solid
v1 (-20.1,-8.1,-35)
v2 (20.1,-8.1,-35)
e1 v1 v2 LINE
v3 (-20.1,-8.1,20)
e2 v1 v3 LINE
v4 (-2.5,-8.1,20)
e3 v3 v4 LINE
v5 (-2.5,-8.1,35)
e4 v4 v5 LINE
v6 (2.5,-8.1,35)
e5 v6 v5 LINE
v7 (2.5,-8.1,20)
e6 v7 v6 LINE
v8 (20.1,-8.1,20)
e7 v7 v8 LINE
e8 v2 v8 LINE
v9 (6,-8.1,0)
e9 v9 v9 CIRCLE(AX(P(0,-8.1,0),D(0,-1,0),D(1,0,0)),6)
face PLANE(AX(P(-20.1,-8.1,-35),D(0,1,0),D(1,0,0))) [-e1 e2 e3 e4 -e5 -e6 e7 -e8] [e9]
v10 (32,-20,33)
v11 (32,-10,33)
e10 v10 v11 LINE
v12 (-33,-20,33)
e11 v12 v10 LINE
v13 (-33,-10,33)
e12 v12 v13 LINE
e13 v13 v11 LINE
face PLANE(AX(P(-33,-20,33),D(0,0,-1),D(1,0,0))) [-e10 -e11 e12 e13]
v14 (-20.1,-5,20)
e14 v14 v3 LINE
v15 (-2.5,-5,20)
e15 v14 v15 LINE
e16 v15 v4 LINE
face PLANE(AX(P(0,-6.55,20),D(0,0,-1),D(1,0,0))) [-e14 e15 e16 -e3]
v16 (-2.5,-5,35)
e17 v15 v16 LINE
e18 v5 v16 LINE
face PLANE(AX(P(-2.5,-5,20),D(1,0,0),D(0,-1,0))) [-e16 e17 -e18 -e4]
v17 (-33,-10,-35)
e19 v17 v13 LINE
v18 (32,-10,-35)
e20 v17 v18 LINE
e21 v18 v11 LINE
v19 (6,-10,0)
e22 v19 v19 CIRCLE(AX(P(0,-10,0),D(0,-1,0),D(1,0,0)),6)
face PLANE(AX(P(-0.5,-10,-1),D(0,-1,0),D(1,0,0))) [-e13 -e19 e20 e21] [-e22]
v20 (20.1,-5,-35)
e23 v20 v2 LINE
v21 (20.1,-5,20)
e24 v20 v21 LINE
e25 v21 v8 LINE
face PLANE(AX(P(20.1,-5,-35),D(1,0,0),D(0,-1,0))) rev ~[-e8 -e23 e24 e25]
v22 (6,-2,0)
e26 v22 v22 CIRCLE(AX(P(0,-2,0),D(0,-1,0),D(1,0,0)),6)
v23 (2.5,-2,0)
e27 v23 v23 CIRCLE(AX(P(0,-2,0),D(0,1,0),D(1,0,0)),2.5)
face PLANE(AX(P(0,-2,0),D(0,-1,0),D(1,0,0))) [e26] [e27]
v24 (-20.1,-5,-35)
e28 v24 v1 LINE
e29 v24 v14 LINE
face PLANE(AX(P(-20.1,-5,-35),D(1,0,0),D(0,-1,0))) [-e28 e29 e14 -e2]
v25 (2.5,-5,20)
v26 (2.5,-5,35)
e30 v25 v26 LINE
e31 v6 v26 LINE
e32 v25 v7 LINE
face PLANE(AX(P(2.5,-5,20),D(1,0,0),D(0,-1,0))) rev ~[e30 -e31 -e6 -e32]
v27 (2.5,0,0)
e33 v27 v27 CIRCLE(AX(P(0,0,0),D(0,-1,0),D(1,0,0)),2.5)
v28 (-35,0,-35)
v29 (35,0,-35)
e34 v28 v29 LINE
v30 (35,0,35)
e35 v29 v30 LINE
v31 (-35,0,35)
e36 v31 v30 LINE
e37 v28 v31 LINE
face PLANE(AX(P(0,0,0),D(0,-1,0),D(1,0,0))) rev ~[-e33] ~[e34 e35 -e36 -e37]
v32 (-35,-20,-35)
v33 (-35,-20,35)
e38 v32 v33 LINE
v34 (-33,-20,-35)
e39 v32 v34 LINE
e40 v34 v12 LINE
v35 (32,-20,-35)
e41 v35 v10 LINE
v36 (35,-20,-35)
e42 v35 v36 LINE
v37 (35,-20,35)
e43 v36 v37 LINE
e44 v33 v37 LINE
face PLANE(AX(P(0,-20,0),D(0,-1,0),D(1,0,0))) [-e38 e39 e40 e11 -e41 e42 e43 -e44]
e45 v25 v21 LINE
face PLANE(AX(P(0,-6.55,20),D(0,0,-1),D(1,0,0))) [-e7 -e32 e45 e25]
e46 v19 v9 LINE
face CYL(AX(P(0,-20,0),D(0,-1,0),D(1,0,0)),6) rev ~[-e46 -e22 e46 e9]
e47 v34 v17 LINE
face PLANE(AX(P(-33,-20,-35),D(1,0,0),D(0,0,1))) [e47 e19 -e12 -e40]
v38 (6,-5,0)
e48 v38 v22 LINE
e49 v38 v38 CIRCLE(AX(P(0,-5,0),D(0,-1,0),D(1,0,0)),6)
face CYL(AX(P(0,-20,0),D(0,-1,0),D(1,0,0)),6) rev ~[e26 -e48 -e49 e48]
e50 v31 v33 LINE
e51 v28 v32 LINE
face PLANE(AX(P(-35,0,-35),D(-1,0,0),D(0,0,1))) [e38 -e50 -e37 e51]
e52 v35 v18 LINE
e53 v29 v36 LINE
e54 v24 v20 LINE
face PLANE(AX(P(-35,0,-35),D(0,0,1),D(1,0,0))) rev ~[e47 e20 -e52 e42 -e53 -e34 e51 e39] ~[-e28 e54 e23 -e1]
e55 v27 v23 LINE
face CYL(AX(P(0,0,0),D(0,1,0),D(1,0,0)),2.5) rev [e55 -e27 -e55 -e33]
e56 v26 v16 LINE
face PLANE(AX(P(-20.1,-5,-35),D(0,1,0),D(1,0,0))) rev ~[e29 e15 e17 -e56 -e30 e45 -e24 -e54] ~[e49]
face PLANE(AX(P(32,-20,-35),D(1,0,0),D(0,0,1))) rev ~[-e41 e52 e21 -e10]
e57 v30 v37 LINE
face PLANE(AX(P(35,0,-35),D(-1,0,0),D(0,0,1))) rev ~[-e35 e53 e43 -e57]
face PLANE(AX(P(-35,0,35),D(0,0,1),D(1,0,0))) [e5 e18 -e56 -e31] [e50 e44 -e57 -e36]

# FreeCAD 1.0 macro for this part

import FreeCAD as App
import Part
import Sketcher

V = App.Vector
Q = App.Units.Quantity

doc = App.newDocument("Part")
body = doc.addObject("PartDesign::Body", "Body")

sketch1 = body.newObject("Sketcher::SketchObject", "Sketch")
sketch1.AttachmentSupport = (doc.getObject("XZ_Plane"), [""])
sketch1.MapMode = "FlatFace"
sketch1.addGeometry([
    Part.LineSegment(V(-35, 35, 0), V(-35, -35, 0)),
    Part.LineSegment(V(-35, -35, 0), V(35, -35, 0)),
    Part.LineSegment(V(35, -35, 0), V(35, 35, 0)),
    Part.LineSegment(V(35, 35, 0), V(-35, 35, 0)),
    Part.Circle(V(0, 0, 0), V(0, 0, 1), 2.5),
], False)
sketch1.addConstraint([
    Sketcher.Constraint("Coincident", 0, 2, 1, 1),
    Sketcher.Constraint("Coincident", 1, 2, 2, 1),
    Sketcher.Constraint("Coincident", 2, 2, 3, 1),
    Sketcher.Constraint("Coincident", 3, 2, 0, 1),
    Sketcher.Constraint("Vertical", 0),
    Sketcher.Constraint("Horizontal", 1),
    Sketcher.Constraint("Vertical", 2),
    Sketcher.Constraint("Horizontal", 3),
    Sketcher.Constraint("Coincident", 4, 3, -1, 1),
    Sketcher.Constraint("Symmetric", 0, 2, 2, 2, -1, 1),
    Sketcher.Constraint("Equal", 3, 0),
    Sketcher.Constraint("Diameter", 4, Q("5 mm")),
    Sketcher.Constraint("DistanceX", 1, 1, 1, 2, Q("70 mm")),
])
pad1 = body.newObject("PartDesign::Pad", "Pad")
pad1.Profile = sketch1
pad1.Length = 20

sketch2 = body.newObject("Sketcher::SketchObject", "Sketch001")
sketch2.AttachmentSupport = (doc.getObject("XY_Plane"), [""])
sketch2.MapMode = "FlatFace"
sketch2.AttachmentOffset = App.Placement(V(0, 0, -35), App.Rotation())
sketch2.addGeometry([
    Part.LineSegment(V(-20.1, -8.1, 0), V(-20.1, -5, 0)),
    Part.LineSegment(V(-20.1, -5, 0), V(20.1, -5, 0)),
    Part.LineSegment(V(20.1, -5, 0), V(20.1, -8.1, 0)),
    Part.LineSegment(V(20.1, -8.1, 0), V(-20.1, -8.1, 0)),
], False)
sketch2.addConstraint([
    Sketcher.Constraint("Coincident", 0, 2, 1, 1),
    Sketcher.Constraint("Coincident", 1, 2, 2, 1),
    Sketcher.Constraint("Coincident", 2, 2, 3, 1),
    Sketcher.Constraint("Coincident", 3, 2, 0, 1),
    Sketcher.Constraint("Vertical", 0),
    Sketcher.Constraint("Horizontal", 1),
    Sketcher.Constraint("Vertical", 2),
    Sketcher.Constraint("Horizontal", 3),
    Sketcher.Constraint("DistanceX", 1, 1, 1, 2, Q("40.2 mm")),
    Sketcher.Constraint("DistanceY", 0, 1, 0, 2, Q("3.1 mm")),
    Sketcher.Constraint("DistanceY", 0, 2, -1, 1, Q("5 mm")),
    Sketcher.Constraint("DistanceX", 0, 2, -1, 1, Q("20.1 mm")),
])
pocket1 = body.newObject("PartDesign::Pocket", "Pocket")
pocket1.Profile = sketch2
pocket1.Length = 55
pocket1.Reversed = True

sketch3 = body.newObject("Sketcher::SketchObject", "Sketch002")
sketch3.AttachmentSupport = (doc.getObject("XZ_Plane"), [""])
sketch3.MapMode = "FlatFace"
sketch3.AttachmentOffset = App.Placement(V(0, 0, 20), App.Rotation())
sketch3.addGeometry(Part.Circle(V(0, 0, 0), V(0, 0, 1), 6), False)
sketch3.addConstraint([
    Sketcher.Constraint("Coincident", 0, 3, -1, 1),
    Sketcher.Constraint("Diameter", 0, Q("12 mm")),
])
pocket2 = body.newObject("PartDesign::Pocket", "Pocket001")
pocket2.Profile = sketch3
pocket2.Length = 18

sketch4 = body.newObject("Sketcher::SketchObject", "Sketch003")
sketch4.AttachmentSupport = (doc.getObject("XZ_Plane"), [""])
sketch4.MapMode = "FlatFace"
sketch4.AttachmentOffset = App.Placement(V(0, 0, 20), App.Rotation())
sketch4.addGeometry([
    Part.LineSegment(V(-33, 33, 0), V(-33, -35, 0)),
    Part.LineSegment(V(-33, -35, 0), V(32, -35, 0)),
    Part.LineSegment(V(32, -35, 0), V(32, 33, 0)),
    Part.LineSegment(V(32, 33, 0), V(-33, 33, 0)),
], False)
sketch4.addConstraint([
    Sketcher.Constraint("Coincident", 0, 2, 1, 1),
    Sketcher.Constraint("Coincident", 1, 2, 2, 1),
    Sketcher.Constraint("Coincident", 2, 2, 3, 1),
    Sketcher.Constraint("Coincident", 3, 2, 0, 1),
    Sketcher.Constraint("Vertical", 0),
    Sketcher.Constraint("Horizontal", 1),
    Sketcher.Constraint("Vertical", 2),
    Sketcher.Constraint("Horizontal", 3),
    Sketcher.Constraint("DistanceX", 1, 1, 1, 2, Q("65 mm")),
    Sketcher.Constraint("DistanceY", 0, 2, 0, 1, Q("68 mm")),
    Sketcher.Constraint("DistanceX", 0, 2, -1, 1, Q("33 mm")),
    Sketcher.Constraint("DistanceY", 0, 2, -1, 1, Q("35 mm")),
])
pocket3 = body.newObject("PartDesign::Pocket", "Pocket002")
pocket3.Profile = sketch4
pocket3.Length = 10

sketch5 = body.newObject("Sketcher::SketchObject", "Sketch004")
sketch5.AttachmentSupport = (doc.getObject("XY_Plane"), [""])
sketch5.MapMode = "FlatFace"
sketch5.AttachmentOffset = App.Placement(V(0, 0, 20), App.Rotation())
sketch5.addGeometry([
    Part.LineSegment(V(-2.5, -8.1, 0), V(-2.5, -5, 0)),
    Part.LineSegment(V(-2.5, -5, 0), V(2.5, -5, 0)),
    Part.LineSegment(V(2.5, -5, 0), V(2.5, -8.1, 0)),
    Part.LineSegment(V(2.5, -8.1, 0), V(-2.5, -8.1, 0)),
], False)
sketch5.addConstraint([
    Sketcher.Constraint("Coincident", 0, 2, 1, 1),
    Sketcher.Constraint("Coincident", 1, 2, 2, 1),
    Sketcher.Constraint("Coincident", 2, 2, 3, 1),
    Sketcher.Constraint("Coincident", 3, 2, 0, 1),
    Sketcher.Constraint("Vertical", 0),
    Sketcher.Constraint("Horizontal", 1),
    Sketcher.Constraint("Vertical", 2),
    Sketcher.Constraint("Horizontal", 3),
    Sketcher.Constraint("DistanceX", 1, 1, 1, 2, Q("5 mm")),
    Sketcher.Constraint("DistanceY", 0, 1, 0, 2, Q("3.1 mm")),
    Sketcher.Constraint("DistanceY", 0, 2, -1, 1, Q("5 mm")),
    Sketcher.Constraint("DistanceX", 0, 2, -1, 1, Q("2.5 mm")),
])
pocket4 = body.newObject("PartDesign::Pocket", "Pocket003")
pocket4.Profile = sketch5
pocket4.Type = "ThroughAll"
pocket4.Reversed = True

doc.recompute()
